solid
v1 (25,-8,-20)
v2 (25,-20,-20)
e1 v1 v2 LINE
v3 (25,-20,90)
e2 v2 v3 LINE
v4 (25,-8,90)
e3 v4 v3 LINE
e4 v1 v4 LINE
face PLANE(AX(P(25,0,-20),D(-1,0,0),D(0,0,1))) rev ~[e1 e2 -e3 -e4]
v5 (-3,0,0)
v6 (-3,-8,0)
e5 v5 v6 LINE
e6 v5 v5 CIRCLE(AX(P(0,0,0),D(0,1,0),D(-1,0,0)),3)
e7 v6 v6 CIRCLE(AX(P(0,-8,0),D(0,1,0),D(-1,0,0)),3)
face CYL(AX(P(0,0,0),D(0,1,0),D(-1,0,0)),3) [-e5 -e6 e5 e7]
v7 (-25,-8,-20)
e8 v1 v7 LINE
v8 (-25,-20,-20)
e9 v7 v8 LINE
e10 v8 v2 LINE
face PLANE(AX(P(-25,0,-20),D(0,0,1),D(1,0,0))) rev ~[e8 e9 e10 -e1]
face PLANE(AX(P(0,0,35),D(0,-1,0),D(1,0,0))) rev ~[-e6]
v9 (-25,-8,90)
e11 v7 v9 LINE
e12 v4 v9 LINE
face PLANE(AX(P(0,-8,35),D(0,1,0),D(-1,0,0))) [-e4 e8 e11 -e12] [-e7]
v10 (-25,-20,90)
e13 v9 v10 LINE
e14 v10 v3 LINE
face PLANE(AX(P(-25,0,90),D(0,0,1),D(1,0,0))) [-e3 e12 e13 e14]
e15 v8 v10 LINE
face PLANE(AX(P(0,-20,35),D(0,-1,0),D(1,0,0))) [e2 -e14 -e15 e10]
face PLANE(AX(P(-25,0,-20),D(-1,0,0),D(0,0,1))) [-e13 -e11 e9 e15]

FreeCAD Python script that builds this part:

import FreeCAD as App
import Part
import Sketcher


def add_polygon(sketch, points):
    """Adds a closed chain of lines whose ends are joined by coincident constraints."""
    first, n = sketch.GeometryCount, len(points)
    for a, b in zip(points, points[1:] + points[:1]):
        sketch.addGeometry(Part.LineSegment(App.Vector(*a, 0), App.Vector(*b, 0)), False)
    for i in range(n):
        sketch.addConstraint(Sketcher.Constraint("Coincident", first + i, 2, first + (i + 1) % n, 1))

doc = App.newDocument("Part")
body = doc.addObject("PartDesign::Body", "Body")

# Sketch on XZ plane
sketch1 = body.newObject("Sketcher::SketchObject", "Sketch")
sketch1.AttachmentSupport = (doc.getObject("XZ_Plane"), [""])
sketch1.MapMode = "FlatFace"
add_polygon(sketch1, [(-25, 90), (-25, -20), (25, -20), (25, 90)])  # lines 0-3
sketch1.addConstraint([
    Sketcher.Constraint("Vertical", 0),
    Sketcher.Constraint("Horizontal", 1),
    Sketcher.Constraint("Vertical", 2),
    Sketcher.Constraint("Horizontal", 3),
    Sketcher.Constraint("DistanceX", 1, 1, 1, 2, 50.0),
    Sketcher.Constraint("DistanceY", 0, 2, 0, 1, 110.0),
    Sketcher.Constraint("DistanceX", 0, 2, -1, 1, 25.0),
    Sketcher.Constraint("DistanceY", 0, 2, -1, 1, 20.0),
])
pad1 = body.newObject("PartDesign::Pad", "Pad")
pad1.Profile = sketch1
pad1.Length = 20

# Sketch on XZ plane
sketch2 = body.newObject("Sketcher::SketchObject", "Sketch001")
sketch2.AttachmentSupport = (doc.getObject("XZ_Plane"), [""])
sketch2.MapMode = "FlatFace"
add_polygon(sketch2, [(25, 90), (25, -20), (-25, -20), (-25, 90)])  # lines 0-3
sketch2.addGeometry(Part.Circle(App.Vector(0, 0, 0), App.Vector(0, 0, 1), 3), False)  # 4
sketch2.addConstraint([
    Sketcher.Constraint("Vertical", 0),
    Sketcher.Constraint("Horizontal", 1),
    Sketcher.Constraint("Vertical", 2),
    Sketcher.Constraint("Horizontal", 3),
    Sketcher.Constraint("Coincident", 4, 3, -1, 1),
    Sketcher.Constraint("Diameter", 4, 6.0),
    Sketcher.Constraint("DistanceX", 1, 2, 1, 1, 50.0),
    Sketcher.Constraint("DistanceY", 0, 2, 0, 1, 110.0),
    Sketcher.Constraint("DistanceX", -1, 1, 0, 2, 25.0),
    Sketcher.Constraint("DistanceY", 0, 2, -1, 1, 20.0),
])
pocket1 = body.newObject("PartDesign::Pocket", "Pocket")
pocket1.Profile = sketch2
pocket1.Length = 8
pocket1.Reversed = True

doc.recompute()
